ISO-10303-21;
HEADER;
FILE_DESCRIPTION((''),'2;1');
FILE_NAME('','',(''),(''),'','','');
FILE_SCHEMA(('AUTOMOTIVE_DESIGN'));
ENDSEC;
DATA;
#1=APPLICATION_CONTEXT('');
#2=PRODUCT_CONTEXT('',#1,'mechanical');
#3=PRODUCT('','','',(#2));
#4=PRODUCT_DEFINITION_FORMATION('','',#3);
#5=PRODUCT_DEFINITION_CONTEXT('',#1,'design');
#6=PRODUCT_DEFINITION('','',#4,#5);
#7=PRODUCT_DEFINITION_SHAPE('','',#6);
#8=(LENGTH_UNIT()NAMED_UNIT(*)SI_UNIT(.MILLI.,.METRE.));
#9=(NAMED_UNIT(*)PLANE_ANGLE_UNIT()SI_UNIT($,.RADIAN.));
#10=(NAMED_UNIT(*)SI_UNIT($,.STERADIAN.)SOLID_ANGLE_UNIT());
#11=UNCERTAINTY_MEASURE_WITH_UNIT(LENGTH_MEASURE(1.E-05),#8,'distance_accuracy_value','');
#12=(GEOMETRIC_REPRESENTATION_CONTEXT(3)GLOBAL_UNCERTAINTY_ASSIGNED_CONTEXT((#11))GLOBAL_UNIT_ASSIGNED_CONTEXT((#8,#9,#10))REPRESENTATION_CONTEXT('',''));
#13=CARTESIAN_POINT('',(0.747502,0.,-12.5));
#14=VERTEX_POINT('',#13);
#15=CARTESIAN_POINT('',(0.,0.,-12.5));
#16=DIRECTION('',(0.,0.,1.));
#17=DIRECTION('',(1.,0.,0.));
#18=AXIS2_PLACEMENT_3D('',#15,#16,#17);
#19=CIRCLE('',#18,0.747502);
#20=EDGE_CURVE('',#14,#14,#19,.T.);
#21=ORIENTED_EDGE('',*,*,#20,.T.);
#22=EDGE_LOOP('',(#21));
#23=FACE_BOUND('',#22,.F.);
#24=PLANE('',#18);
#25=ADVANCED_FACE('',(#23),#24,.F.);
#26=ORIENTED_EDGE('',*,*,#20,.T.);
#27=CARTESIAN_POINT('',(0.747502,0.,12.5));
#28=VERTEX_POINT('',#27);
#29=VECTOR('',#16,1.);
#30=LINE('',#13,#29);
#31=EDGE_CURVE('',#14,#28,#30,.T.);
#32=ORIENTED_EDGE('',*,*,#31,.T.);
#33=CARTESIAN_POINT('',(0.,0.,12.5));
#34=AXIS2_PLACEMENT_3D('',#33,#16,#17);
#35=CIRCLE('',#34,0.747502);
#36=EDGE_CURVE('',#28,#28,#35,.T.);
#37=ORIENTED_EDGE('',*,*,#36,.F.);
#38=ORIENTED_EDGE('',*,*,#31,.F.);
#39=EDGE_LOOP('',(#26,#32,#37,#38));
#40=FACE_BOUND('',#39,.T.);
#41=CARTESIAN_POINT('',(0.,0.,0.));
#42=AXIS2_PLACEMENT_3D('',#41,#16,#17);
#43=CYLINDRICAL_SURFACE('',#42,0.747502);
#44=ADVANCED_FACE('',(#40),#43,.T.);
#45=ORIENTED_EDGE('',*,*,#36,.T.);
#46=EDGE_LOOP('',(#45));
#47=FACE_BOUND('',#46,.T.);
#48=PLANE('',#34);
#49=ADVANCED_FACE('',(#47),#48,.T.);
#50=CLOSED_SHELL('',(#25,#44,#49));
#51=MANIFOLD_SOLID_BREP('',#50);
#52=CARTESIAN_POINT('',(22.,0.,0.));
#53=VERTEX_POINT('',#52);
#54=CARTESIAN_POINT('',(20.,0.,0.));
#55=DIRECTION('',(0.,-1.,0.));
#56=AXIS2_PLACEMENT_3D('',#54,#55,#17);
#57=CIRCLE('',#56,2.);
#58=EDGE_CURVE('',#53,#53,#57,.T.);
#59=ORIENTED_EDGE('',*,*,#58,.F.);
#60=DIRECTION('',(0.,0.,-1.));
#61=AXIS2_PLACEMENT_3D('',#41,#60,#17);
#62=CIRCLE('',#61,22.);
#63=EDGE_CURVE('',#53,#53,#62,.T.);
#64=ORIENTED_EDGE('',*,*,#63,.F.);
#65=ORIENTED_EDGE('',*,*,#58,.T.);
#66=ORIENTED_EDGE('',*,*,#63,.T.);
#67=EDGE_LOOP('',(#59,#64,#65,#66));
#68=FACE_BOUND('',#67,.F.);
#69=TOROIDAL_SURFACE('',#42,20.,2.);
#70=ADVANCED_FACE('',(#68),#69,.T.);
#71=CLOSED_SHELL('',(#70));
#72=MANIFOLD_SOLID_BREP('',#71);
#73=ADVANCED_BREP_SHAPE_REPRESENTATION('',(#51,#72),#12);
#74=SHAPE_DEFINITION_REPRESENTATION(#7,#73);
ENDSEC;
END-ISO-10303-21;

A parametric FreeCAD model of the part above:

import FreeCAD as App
import Part
import Sketcher
from FreeCAD import Vector
Q = App.Units.Quantity

doc = App.newDocument("Part")
body = doc.addObject("PartDesign::Body", "Body")

sketch1 = body.newObject("Sketcher::SketchObject", "Sketch")
sketch1.AttachmentSupport = (doc.getObject("XZ_Plane"), [""])
sketch1.MapMode = "FlatFace"
sketch1.addGeometry(Part.Circle(Vector(20, 0, 0), Vector(0, 0, 1), 2), False)
sketch1.addConstraint(Sketcher.Constraint("PointOnObject", 0, 3, -1))
sketch1.addConstraint(Sketcher.Constraint("Diameter", 0, Q("4 mm")))
sketch1.addConstraint(Sketcher.Constraint("DistanceX", -1, 1, 0, 3, Q("20 mm")))
revolution = body.newObject("PartDesign::Revolution", "Revolution")
revolution.Profile = sketch1
revolution.ReferenceAxis = (sketch1, ["V_Axis"])
revolution.Angle = 360
body2 = doc.addObject("PartDesign::Body", "Body001")

sketch2 = body2.newObject("Sketcher::SketchObject", "Sketch001")
sketch2.AttachmentSupport = (doc.getObject("XY_Plane001"), [""])
sketch2.MapMode = "FlatFace"
sketch2.addGeometry(Part.Circle(Vector(0, 0, 0), Vector(0, 0, 1), 0.7), False)
sketch2.addConstraint(Sketcher.Constraint("Coincident", 0, 3, -1, 1))
sketch2.addConstraint(Sketcher.Constraint("Diameter", 0, Q("1.495004 mm")))
pad1 = body2.newObject("PartDesign::Pad", "Pad")
pad1.Profile = sketch2
pad1.Length = 25
pad1.Midplane = True

doc.recompute()
